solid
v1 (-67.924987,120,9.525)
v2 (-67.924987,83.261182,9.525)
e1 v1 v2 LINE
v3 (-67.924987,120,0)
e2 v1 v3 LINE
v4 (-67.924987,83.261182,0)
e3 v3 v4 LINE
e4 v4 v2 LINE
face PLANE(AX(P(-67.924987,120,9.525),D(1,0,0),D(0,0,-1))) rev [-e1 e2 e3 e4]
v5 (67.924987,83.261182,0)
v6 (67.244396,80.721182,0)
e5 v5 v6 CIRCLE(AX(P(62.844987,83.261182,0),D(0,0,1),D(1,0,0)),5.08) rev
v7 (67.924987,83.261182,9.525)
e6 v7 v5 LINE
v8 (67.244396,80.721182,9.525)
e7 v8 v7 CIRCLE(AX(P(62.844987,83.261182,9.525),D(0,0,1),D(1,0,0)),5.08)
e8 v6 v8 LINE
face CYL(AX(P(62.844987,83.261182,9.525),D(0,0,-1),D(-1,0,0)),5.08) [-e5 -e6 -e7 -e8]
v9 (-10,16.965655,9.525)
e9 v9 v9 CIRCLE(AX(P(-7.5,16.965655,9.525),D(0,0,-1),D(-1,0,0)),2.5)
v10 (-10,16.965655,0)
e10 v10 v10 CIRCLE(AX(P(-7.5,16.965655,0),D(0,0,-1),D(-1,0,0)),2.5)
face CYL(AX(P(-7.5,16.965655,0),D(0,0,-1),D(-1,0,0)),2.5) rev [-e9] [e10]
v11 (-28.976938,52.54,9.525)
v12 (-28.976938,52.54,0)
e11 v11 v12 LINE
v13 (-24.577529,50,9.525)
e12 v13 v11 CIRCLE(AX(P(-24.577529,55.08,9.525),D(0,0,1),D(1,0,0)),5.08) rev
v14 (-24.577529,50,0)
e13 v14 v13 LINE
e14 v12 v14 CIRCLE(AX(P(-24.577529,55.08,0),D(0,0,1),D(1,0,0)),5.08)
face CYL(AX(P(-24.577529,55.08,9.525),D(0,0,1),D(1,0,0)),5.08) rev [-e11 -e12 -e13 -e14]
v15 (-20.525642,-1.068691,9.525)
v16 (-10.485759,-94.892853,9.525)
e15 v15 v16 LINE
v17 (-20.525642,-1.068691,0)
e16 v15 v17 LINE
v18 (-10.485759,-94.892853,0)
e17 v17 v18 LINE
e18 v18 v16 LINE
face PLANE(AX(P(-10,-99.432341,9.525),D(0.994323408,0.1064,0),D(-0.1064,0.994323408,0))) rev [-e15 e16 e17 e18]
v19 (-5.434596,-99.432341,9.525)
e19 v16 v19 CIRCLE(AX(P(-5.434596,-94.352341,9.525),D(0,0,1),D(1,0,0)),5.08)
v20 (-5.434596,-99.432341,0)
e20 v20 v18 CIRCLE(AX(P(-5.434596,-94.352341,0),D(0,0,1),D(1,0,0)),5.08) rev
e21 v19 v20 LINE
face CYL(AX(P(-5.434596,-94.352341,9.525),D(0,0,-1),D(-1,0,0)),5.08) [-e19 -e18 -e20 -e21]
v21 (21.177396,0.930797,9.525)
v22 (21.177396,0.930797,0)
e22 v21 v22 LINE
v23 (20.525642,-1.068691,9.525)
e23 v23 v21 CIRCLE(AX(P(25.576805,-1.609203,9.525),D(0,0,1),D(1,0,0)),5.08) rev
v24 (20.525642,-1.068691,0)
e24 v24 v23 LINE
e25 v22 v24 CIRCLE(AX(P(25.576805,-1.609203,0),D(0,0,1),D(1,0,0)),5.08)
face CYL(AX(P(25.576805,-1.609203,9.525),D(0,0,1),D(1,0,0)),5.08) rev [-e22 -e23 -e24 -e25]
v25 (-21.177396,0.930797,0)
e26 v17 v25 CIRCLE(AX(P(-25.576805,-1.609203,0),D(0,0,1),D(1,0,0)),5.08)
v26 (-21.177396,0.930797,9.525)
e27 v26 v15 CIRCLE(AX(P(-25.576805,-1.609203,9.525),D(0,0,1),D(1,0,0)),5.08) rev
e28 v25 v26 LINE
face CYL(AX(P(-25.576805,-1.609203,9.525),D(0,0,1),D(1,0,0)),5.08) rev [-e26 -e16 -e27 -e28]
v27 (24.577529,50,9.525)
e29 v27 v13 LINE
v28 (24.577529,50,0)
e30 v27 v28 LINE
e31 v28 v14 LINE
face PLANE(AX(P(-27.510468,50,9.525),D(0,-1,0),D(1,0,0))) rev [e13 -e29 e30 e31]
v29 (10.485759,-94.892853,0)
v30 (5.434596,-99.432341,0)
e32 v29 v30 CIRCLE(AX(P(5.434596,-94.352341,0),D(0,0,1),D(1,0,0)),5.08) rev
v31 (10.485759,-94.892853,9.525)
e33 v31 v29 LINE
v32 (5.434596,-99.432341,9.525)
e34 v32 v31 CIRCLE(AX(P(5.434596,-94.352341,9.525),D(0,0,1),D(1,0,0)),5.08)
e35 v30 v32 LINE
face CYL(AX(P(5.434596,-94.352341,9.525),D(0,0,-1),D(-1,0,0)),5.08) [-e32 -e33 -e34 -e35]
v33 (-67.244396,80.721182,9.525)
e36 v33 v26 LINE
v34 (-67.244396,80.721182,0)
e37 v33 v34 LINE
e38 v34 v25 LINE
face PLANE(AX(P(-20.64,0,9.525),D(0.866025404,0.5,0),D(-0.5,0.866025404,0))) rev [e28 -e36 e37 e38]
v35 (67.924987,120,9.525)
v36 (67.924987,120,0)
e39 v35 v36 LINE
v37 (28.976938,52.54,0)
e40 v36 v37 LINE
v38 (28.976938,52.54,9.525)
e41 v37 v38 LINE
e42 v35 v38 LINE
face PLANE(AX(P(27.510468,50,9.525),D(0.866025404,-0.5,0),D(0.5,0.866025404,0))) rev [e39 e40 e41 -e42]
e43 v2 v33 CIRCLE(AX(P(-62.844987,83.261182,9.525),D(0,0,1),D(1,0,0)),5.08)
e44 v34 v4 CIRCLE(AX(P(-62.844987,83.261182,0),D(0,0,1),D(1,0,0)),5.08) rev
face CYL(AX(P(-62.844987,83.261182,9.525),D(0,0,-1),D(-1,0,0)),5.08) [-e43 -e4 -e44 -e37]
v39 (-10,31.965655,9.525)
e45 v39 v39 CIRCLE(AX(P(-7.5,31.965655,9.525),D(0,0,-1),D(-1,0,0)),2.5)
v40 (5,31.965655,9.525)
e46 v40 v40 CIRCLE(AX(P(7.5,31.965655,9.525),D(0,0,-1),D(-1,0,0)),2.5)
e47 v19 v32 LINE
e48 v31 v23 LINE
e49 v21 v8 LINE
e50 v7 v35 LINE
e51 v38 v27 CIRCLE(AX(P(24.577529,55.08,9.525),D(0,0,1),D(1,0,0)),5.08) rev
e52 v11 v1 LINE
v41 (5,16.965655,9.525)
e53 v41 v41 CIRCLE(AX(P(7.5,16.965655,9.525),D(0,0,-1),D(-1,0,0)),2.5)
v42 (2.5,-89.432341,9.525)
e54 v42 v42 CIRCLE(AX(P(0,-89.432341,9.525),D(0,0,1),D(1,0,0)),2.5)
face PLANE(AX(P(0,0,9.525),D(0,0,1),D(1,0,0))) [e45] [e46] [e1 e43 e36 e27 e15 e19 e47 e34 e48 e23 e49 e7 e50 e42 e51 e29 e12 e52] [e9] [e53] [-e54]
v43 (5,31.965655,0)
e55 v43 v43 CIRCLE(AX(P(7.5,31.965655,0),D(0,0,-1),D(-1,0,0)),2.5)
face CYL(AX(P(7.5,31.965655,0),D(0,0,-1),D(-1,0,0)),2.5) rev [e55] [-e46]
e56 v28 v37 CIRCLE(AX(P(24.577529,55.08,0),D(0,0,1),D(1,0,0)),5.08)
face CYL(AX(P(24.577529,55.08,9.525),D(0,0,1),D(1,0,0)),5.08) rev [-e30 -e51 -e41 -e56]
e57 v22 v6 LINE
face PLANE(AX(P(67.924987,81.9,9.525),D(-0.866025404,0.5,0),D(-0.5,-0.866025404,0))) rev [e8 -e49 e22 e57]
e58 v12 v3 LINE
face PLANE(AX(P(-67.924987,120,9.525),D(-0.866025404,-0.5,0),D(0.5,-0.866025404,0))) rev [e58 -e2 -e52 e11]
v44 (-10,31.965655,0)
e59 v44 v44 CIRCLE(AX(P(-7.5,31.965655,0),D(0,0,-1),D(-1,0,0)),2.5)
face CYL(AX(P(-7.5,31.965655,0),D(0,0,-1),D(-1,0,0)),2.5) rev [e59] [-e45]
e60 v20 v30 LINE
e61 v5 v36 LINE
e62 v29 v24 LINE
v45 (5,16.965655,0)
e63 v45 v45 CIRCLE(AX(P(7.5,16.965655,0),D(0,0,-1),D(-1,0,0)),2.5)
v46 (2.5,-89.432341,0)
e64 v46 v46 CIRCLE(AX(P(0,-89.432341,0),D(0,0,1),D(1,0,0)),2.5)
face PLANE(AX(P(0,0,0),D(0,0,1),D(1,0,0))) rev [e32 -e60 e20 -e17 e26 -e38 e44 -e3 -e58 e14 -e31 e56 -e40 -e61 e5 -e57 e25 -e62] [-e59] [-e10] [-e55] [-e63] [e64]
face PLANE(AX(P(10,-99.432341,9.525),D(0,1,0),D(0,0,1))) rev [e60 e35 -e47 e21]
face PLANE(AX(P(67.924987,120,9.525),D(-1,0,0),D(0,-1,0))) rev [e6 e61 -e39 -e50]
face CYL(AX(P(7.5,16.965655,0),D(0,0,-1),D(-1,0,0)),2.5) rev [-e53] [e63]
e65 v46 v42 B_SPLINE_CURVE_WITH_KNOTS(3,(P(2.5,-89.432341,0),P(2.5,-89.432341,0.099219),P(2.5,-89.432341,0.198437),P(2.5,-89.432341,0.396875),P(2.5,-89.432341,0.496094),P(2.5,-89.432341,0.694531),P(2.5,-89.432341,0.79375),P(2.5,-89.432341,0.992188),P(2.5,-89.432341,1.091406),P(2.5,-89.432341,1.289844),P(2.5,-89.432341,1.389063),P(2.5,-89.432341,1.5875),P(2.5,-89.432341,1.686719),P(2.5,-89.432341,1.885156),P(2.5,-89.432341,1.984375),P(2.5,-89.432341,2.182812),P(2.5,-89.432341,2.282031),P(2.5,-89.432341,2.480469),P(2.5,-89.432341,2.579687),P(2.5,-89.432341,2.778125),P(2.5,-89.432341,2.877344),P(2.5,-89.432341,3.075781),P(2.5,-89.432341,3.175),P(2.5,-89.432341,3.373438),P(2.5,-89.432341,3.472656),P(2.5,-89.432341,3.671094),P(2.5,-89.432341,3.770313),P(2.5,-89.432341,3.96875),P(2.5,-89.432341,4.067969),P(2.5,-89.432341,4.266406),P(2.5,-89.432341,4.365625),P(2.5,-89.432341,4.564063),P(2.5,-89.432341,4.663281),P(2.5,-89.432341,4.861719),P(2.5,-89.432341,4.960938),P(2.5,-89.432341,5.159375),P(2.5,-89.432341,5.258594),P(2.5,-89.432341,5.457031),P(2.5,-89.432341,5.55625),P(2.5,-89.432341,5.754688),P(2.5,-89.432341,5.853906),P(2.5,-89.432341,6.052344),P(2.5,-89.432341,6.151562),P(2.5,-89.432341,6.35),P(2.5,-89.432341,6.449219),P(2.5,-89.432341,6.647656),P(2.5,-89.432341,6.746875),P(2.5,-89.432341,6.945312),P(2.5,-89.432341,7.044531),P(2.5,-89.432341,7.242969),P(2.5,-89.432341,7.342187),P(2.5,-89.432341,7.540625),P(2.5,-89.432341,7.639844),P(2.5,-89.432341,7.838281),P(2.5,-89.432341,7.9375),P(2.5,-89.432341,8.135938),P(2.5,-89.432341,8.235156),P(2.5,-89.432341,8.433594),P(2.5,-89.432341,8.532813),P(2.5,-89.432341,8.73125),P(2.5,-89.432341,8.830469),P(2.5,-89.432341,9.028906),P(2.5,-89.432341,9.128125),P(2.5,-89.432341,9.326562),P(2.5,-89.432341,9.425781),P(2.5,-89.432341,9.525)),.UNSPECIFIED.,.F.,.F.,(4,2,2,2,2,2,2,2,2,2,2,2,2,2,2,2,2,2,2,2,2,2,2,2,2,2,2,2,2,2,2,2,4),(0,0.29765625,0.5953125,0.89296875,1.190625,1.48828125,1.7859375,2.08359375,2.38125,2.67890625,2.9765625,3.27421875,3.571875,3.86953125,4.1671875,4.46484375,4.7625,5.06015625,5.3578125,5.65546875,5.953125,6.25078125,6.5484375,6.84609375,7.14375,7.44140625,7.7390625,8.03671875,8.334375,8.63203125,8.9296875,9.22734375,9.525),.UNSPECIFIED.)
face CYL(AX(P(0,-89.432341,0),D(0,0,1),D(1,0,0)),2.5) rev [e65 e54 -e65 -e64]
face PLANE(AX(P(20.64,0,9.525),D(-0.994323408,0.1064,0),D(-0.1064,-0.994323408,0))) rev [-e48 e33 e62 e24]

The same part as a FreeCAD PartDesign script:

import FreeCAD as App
import Part
import Sketcher

V = App.Vector
Q = App.Units.Quantity


def edges_at(feature, points):
    """Names of the edges that pass closest to the given points."""
    edges = feature.Shape.Edges
    near = lambda p: min(range(len(edges)), key=lambda i: edges[i].distToShape(Part.Vertex(*p))[0])
    return sorted({f"Edge{near(p) + 1}" for p in points})

doc = App.newDocument("Part")
body = doc.addObject("PartDesign::Body", "Body")

sketch1 = body.newObject("Sketcher::SketchObject", "Sketch")
sketch1.AttachmentSupport = (doc.getObject("XY_Plane"), [""])
sketch1.MapMode = "FlatFace"
sketch1.addGeometry(Part.LineSegment(V(27.510468, 50, 0), V(-27.510468, 50, 0)), False)
sketch1.addGeometry(Part.LineSegment(V(-27.510468, 50, 0), V(-67.924987, 120, 0)), False)
sketch1.addGeometry(Part.LineSegment(V(-67.924987, 120, 0), V(-67.924987, 81.9, 0)), False)
sketch1.addGeometry(Part.LineSegment(V(-67.924987, 81.9, 0), V(-20.64, 0, 0)), False)
sketch1.addGeometry(Part.LineSegment(V(-20.64, 0, 0), V(-10, -99.432341, 0)), False)
sketch1.addGeometry(Part.LineSegment(V(-10, -99.432341, 0), V(10, -99.432341, 0)), False)
sketch1.addGeometry(Part.LineSegment(V(10, -99.432341, 0), V(20.64, 0, 0)), False)
sketch1.addGeometry(Part.LineSegment(V(20.64, 0, 0), V(67.924987, 81.9, 0)), False)
sketch1.addGeometry(Part.LineSegment(V(67.924987, 81.9, 0), V(67.924987, 120, 0)), False)
sketch1.addGeometry(Part.LineSegment(V(67.924987, 120, 0), V(27.510468, 50, 0)), False)
sketch1.addConstraint(Sketcher.Constraint("Coincident", 0, 2, 1, 1))
sketch1.addConstraint(Sketcher.Constraint("Coincident", 1, 2, 2, 1))
sketch1.addConstraint(Sketcher.Constraint("Coincident", 2, 2, 3, 1))
sketch1.addConstraint(Sketcher.Constraint("Coincident", 3, 2, 4, 1))
sketch1.addConstraint(Sketcher.Constraint("Coincident", 4, 2, 5, 1))
sketch1.addConstraint(Sketcher.Constraint("Coincident", 5, 2, 6, 1))
sketch1.addConstraint(Sketcher.Constraint("Coincident", 6, 2, 7, 1))
sketch1.addConstraint(Sketcher.Constraint("Coincident", 7, 2, 8, 1))
sketch1.addConstraint(Sketcher.Constraint("Coincident", 8, 2, 9, 1))
sketch1.addConstraint(Sketcher.Constraint("Coincident", 9, 2, 0, 1))
sketch1.addConstraint(Sketcher.Constraint("Horizontal", 0))
sketch1.addConstraint(Sketcher.Constraint("Vertical", 2))
sketch1.addConstraint(Sketcher.Constraint("Horizontal", 5))
sketch1.addConstraint(Sketcher.Constraint("Vertical", 8))
sketch1.addConstraint(Sketcher.Constraint("Symmetric", 3, 2, 6, 2, -1, 1))
sketch1.addConstraint(Sketcher.Constraint("Symmetric", 2, 2, 7, 2, -2))
sketch1.addConstraint(Sketcher.Constraint("PointOnObject", 3, 2, -1))
sketch1.addConstraint(Sketcher.Constraint("Parallel", 1, 3))
sketch1.addConstraint(Sketcher.Constraint("Parallel", 7, 9))
sketch1.addConstraint(Sketcher.Constraint("Horizontal", 1, 2, 8, 2))
sketch1.addConstraint(Sketcher.Constraint("Equal", 4, 6))
sketch1.addConstraint(Sketcher.Constraint("DistanceX", 5, 1, 5, 2, Q("20 mm")))
sketch1.addConstraint(Sketcher.Constraint("Angle", 1, Q("120 deg")))
sketch1.addConstraint(Sketcher.Constraint("Distance", 4, Q("100 mm")))
sketch1.addConstraint(Sketcher.Constraint("DistanceY", 2, 2, 2, 1, Q("38.1 mm")))
sketch1.addConstraint(Sketcher.Constraint("DistanceY", -1, 1, 0, 2, Q("50 mm")))
sketch1.addConstraint(Sketcher.Constraint("DistanceY", -1, 1, 1, 2, Q("120 mm")))
sketch1.addConstraint(Sketcher.Constraint("DistanceX", 3, 2, -1, 1, Q("20.64 mm")))
pad1 = body.newObject("PartDesign::Pad", "Pad")
pad1.Profile = sketch1
pad1.Length = 9.525
doc.recompute()

fillet = body.newObject("PartDesign::Fillet", "Fillet")
fillet.Base = (pad1, edges_at(pad1, [
    (-27.51, 50, 4.763),
    (27.51, 50, 4.763),
    (67.925, 81.9, 4.763),
    (20.64, 0, 4.763),
    (10, -99.432, 4.763),
    (-10, -99.432, 4.763),
    (-20.64, 0, 4.763),
    (-67.925, 81.9, 4.763),
]))
fillet.Radius = 5.08

sketch2 = body.newObject("Sketcher::SketchObject", "Sketch001")
sketch2.AttachmentSupport = (doc.getObject("XY_Plane"), [""])
sketch2.MapMode = "FlatFace"
sketch2.addGeometry(Part.Circle(V(7.5, 31.965655, 0), V(0, 0, 1), 2.5), False)
sketch2.addGeometry(Part.Circle(V(-7.5, 31.965655, 0), V(0, 0, 1), 2.5), False)
sketch2.addGeometry(Part.Circle(V(7.5, 16.965655, 0), V(0, 0, 1), 2.5), False)
sketch2.addGeometry(Part.Circle(V(-7.5, 16.965655, 0), V(0, 0, 1), 2.5), False)
sketch2.addConstraint(Sketcher.Constraint("Equal", 0, 1))
sketch2.addConstraint(Sketcher.Constraint("Equal", 1, 2))
sketch2.addConstraint(Sketcher.Constraint("Equal", 2, 3))
sketch2.addConstraint(Sketcher.Constraint("Symmetric", 0, 3, 1, 3, -2))
sketch2.addConstraint(Sketcher.Constraint("Symmetric", 2, 3, 3, 3, -2))
sketch2.addConstraint(Sketcher.Constraint("Vertical", 0, 3, 2, 3))
sketch2.addConstraint(Sketcher.Constraint("Diameter", 0, Q("5 mm")))
sketch2.addConstraint(Sketcher.Constraint("DistanceX", 1, 3, 0, 3, Q("15 mm")))
sketch2.addConstraint(Sketcher.Constraint("DistanceY", 2, 3, 0, 3, Q("15 mm")))
sketch2.addConstraint(Sketcher.Constraint("DistanceY", -1, 1, 0, 3, Q("31.965655 mm")))
doc.recompute()
hole = body.newObject("PartDesign::Hole", "Hole")
hole.Profile = sketch2
hole.ThreadType = "None"
hole.Diameter = 5
hole.DepthType = "ThroughAll"
hole.Reversed = True

sketch3 = body.newObject("Sketcher::SketchObject", "Sketch002")
sketch3.AttachmentSupport = (doc.getObject("XY_Plane"), [""])
sketch3.MapMode = "FlatFace"
sketch3.AttachmentOffset = App.Placement(V(0, 0, 9.525), App.Rotation())
sketch3.addGeometry(Part.Circle(V(0, -89.432341, 0), V(0, 0, 1), 2.5), False)
sketch3.addConstraint(Sketcher.Constraint("PointOnObject", 0, 3, -2))
sketch3.addConstraint(Sketcher.Constraint("Diameter", 0, Q("5 mm")))
sketch3.addConstraint(Sketcher.Constraint("DistanceY", 0, 3, -1, 1, Q("89.432341 mm")))
pocket1 = body.newObject("PartDesign::Pocket", "Pocket")
pocket1.Profile = sketch3
pocket1.Type = "ThroughAll"

doc.recompute()
